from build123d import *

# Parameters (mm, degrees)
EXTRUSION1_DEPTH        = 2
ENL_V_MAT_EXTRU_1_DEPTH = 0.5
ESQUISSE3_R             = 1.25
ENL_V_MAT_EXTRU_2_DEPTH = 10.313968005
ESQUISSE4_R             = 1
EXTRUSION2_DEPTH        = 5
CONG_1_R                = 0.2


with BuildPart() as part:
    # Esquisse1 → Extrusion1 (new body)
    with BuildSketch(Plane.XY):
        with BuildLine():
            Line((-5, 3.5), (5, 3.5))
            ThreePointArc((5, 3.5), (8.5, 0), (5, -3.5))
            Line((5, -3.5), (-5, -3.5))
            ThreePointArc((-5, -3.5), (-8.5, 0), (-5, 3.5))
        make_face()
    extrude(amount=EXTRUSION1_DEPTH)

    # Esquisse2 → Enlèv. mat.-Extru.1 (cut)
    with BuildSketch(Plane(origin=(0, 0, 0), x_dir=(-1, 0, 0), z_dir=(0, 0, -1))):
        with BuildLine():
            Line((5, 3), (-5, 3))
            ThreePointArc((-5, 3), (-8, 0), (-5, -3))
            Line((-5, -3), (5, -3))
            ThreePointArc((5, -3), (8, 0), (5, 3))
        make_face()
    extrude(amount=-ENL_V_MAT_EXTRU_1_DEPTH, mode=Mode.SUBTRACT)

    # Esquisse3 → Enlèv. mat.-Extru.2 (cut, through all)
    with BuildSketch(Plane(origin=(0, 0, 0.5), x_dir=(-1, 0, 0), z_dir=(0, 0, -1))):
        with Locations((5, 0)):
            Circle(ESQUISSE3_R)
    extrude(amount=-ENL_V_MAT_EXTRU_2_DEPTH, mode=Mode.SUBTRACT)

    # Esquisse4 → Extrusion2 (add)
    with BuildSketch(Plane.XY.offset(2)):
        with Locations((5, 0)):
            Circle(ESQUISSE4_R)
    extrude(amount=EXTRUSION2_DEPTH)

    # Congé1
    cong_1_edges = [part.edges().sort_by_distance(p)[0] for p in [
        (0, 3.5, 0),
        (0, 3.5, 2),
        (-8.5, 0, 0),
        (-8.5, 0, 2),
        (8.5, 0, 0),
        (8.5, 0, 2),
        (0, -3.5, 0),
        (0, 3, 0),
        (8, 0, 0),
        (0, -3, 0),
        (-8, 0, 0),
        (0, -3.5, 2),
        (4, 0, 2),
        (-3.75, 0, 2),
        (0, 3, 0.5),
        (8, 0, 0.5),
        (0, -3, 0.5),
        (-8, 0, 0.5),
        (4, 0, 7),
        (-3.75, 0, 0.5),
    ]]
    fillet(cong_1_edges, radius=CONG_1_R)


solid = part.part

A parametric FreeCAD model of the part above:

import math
import FreeCAD as App
import Part
import Sketcher
from FreeCAD import Vector


def edges_at(feature, points):
    """Names of the edges that pass closest to the given points."""
    edges = feature.Shape.Edges
    near = lambda p: min(range(len(edges)), key=lambda i: edges[i].distToShape(Part.Vertex(*p))[0])
    return sorted({f"Edge{near(p) + 1}" for p in points})

doc = App.newDocument("Part")
body = doc.addObject("PartDesign::Body", "Body")

# Sketch on XY plane
sketch1 = body.newObject("Sketcher::SketchObject", "Sketch")
sketch1.AttachmentSupport = (doc.getObject("XY_Plane"), [""])
sketch1.MapMode = "FlatFace"
sketch1.addGeometry(Part.LineSegment(Vector(5, 3.5, 0), Vector(-5, 3.5, 0)), False)
sketch1.addGeometry(Part.ArcOfCircle(Part.Circle(Vector(-5, 0, 0), Vector(0, 0, 1), 3.5), math.radians(90), math.radians(270)), False)
sketch1.addGeometry(Part.LineSegment(Vector(-5, -3.5, 0), Vector(5, -3.5, 0)), False)
sketch1.addGeometry(Part.ArcOfCircle(Part.Circle(Vector(5, 0, 0), Vector(0, 0, 1), 3.5), math.radians(-90), math.radians(90)), False)
sketch1.addConstraint(Sketcher.Constraint("Tangent", 0, 2, 1, 1))
sketch1.addConstraint(Sketcher.Constraint("Tangent", 1, 2, 2, 1))
sketch1.addConstraint(Sketcher.Constraint("Tangent", 2, 2, 3, 1))
sketch1.addConstraint(Sketcher.Constraint("Tangent", 3, 2, 0, 1))
sketch1.addConstraint(Sketcher.Constraint("Horizontal", 0))
sketch1.addConstraint(Sketcher.Constraint("Horizontal", 2))
sketch1.addConstraint(Sketcher.Constraint("Symmetric", 1, 3, 3, 3, -1, 1))
sketch1.addConstraint(Sketcher.Constraint("Radius", 1, 3.5))
sketch1.addConstraint(Sketcher.Constraint("DistanceX", 0, 2, 0, 1, 10.0))
pad1 = body.newObject("PartDesign::Pad", "Pad")
pad1.Profile = sketch1
pad1.Length = 2

# Sketch on XY plane
sketch2 = body.newObject("Sketcher::SketchObject", "Sketch001")
sketch2.AttachmentSupport = (doc.getObject("XY_Plane"), [""])
sketch2.MapMode = "FlatFace"
sketch2.addGeometry(Part.LineSegment(Vector(-5, 3, 0), Vector(5, 3, 0)), False)
sketch2.addGeometry(Part.ArcOfCircle(Part.Circle(Vector(5, 0, 0), Vector(0, 0, 1), 3), math.radians(-90), math.radians(90)), False)
sketch2.addGeometry(Part.LineSegment(Vector(5, -3, 0), Vector(-5, -3, 0)), False)
sketch2.addGeometry(Part.ArcOfCircle(Part.Circle(Vector(-5, 0, 0), Vector(0, 0, 1), 3), math.radians(90), math.radians(270)), False)
sketch2.addConstraint(Sketcher.Constraint("Tangent", 0, 2, 1, 2))
sketch2.addConstraint(Sketcher.Constraint("Tangent", 1, 1, 2, 1))
sketch2.addConstraint(Sketcher.Constraint("Tangent", 2, 2, 3, 2))
sketch2.addConstraint(Sketcher.Constraint("Tangent", 3, 1, 0, 1))
sketch2.addConstraint(Sketcher.Constraint("Horizontal", 0))
sketch2.addConstraint(Sketcher.Constraint("Horizontal", 2))
sketch2.addConstraint(Sketcher.Constraint("Symmetric", 1, 3, 3, 3, -1, 1))
sketch2.addConstraint(Sketcher.Constraint("Radius", 1, 3.0))
sketch2.addConstraint(Sketcher.Constraint("DistanceX", 0, 1, 0, 2, 10.0))
pocket1 = body.newObject("PartDesign::Pocket", "Pocket")
pocket1.Profile = sketch2
pocket1.Length = 0.5
pocket1.Reversed = True

# Sketch on XY plane
sketch3 = body.newObject("Sketcher::SketchObject", "Sketch002")
sketch3.AttachmentSupport = (doc.getObject("XY_Plane"), [""])
sketch3.MapMode = "FlatFace"
sketch3.AttachmentOffset = App.Placement(Vector(0, 0, 0.5), App.Rotation())
sketch3.addGeometry(Part.Circle(Vector(-5, 0, 0), Vector(0, 0, 1), 1.2), False)
sketch3.addConstraint(Sketcher.Constraint("PointOnObject", 0, 3, -1))
sketch3.addConstraint(Sketcher.Constraint("Diameter", 0, 2.5))
sketch3.addConstraint(Sketcher.Constraint("DistanceX", 0, 3, -1, 1, 5.0))
pocket2 = body.newObject("PartDesign::Pocket", "Pocket001")
pocket2.Profile = sketch3
pocket2.Type = "ThroughAll"
pocket2.Reversed = True

# Sketch on XY plane
sketch4 = body.newObject("Sketcher::SketchObject", "Sketch003")
sketch4.AttachmentSupport = (doc.getObject("XY_Plane"), [""])
sketch4.MapMode = "FlatFace"
sketch4.AttachmentOffset = App.Placement(Vector(0, 0, 2), App.Rotation())
sketch4.addGeometry(Part.Circle(Vector(5, 0, 0), Vector(0, 0, 1), 1), False)
sketch4.addConstraint(Sketcher.Constraint("PointOnObject", 0, 3, -1))
sketch4.addConstraint(Sketcher.Constraint("Diameter", 0, 2.0))
sketch4.addConstraint(Sketcher.Constraint("DistanceX", -1, 1, 0, 3, 5.0))
pad2 = body.newObject("PartDesign::Pad", "Pad001")
pad2.Profile = sketch4
pad2.Length = 5
doc.recompute()

fillet = body.newObject("PartDesign::Fillet", "Fillet")
fillet.Base = (pad2, edges_at(pad2, [
    (0, 3.5, 0),
    (0, 3.5, 2),
    (-8.5, 0, 0),
    (-8.5, 0, 2),
    (8.5, 0, 0),
    (8.5, 0, 2),
    (0, -3.5, 0),
    (0, 3, 0),
    (8, 0, 0),
    (0, -3, 0),
    (-8, 0, 0),
    (0, -3.5, 2),
    (4, 0, 2),
    (-3.75, 0, 2),
    (0, 3, 0.5),
    (8, 0, 0.5),
    (0, -3, 0.5),
    (-8, 0, 0.5),
    (4, 0, 7),
    (-3.75, 0, 0.5),
]))
fillet.Radius = 0.2

doc.recompute()
